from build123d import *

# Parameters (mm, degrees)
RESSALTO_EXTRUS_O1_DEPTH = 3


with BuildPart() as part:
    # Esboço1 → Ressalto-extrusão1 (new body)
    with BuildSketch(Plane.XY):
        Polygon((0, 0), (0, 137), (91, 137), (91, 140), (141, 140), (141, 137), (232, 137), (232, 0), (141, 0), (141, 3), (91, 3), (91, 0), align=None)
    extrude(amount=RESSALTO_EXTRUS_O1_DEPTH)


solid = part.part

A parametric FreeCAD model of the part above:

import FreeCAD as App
import Part
import Sketcher

V = App.Vector


def add_polygon(sketch, points):
    """Adds a closed chain of lines whose ends are joined by coincident constraints."""
    first, n = sketch.GeometryCount, len(points)
    for a, b in zip(points, points[1:] + points[:1]):
        sketch.addGeometry(Part.LineSegment(App.Vector(*a, 0), App.Vector(*b, 0)), False)
    for i in range(n):
        sketch.addConstraint(Sketcher.Constraint("Coincident", first + i, 2, first + (i + 1) % n, 1))

doc = App.newDocument("Part")
params = doc.addObject("Spreadsheet::Sheet", "Params")
for row, (alias, value) in enumerate([
    ("sketch1_width", "91 mm"),
    ("sketch1_width2", "50 mm"),
    ("sketch1_height", "137 mm"),
    ("sketch1_height2", "3 mm"),
    ("pad1_length", "3 mm"),
], start=1):
    params.set(f"A{row}", alias)
    params.set(f"B{row}", "=" + value)
    params.setAlias(f"B{row}", alias)

body = doc.addObject("PartDesign::Body", "Body")

# Sketch on XY plane
sketch1 = body.newObject("Sketcher::SketchObject", "Sketch")
sketch1.AttachmentSupport = (doc.getObject("XY_Plane"), [""])
sketch1.MapMode = "FlatFace"
add_polygon(sketch1, [(0, 137), (0, 0), (91, 0), (91, 3), (141, 3), (141, 0), (232, 0), (232, 137), (141, 137), (141, 140), (91, 140), (91, 137)])  # lines 0-11
sketch1.addConstraint(Sketcher.Constraint("Vertical", 0))
sketch1.addConstraint(Sketcher.Constraint("Horizontal", 1))
sketch1.addConstraint(Sketcher.Constraint("Vertical", 2))
sketch1.addConstraint(Sketcher.Constraint("Horizontal", 3))
sketch1.addConstraint(Sketcher.Constraint("Vertical", 4))
sketch1.addConstraint(Sketcher.Constraint("Horizontal", 5))
sketch1.addConstraint(Sketcher.Constraint("Vertical", 6))
sketch1.addConstraint(Sketcher.Constraint("Horizontal", 7))
sketch1.addConstraint(Sketcher.Constraint("Vertical", 8))
sketch1.addConstraint(Sketcher.Constraint("Horizontal", 9))
sketch1.addConstraint(Sketcher.Constraint("Vertical", 10))
sketch1.addConstraint(Sketcher.Constraint("Horizontal", 11))
sketch1.addConstraint(Sketcher.Constraint("Coincident", 0, 2, -1, 1))
sketch1.addConstraint(Sketcher.Constraint("PointOnObject", 4, 2, -1))
sketch1.addConstraint(Sketcher.Constraint("Horizontal", 7, 2, 10, 2))
sketch1.addConstraint(Sketcher.Constraint("Vertical", 4, 2, 7, 2))
sketch1.addConstraint(Sketcher.Constraint("Vertical", 2, 2, 9, 2))
sketch1.addConstraint(Sketcher.Constraint("Equal", 1, 5))
sketch1.addConstraint(Sketcher.Constraint("Equal", 4, 8))
sketch1.addConstraint(Sketcher.Constraint("DistanceX", 1, 1, 1, 2, 91.0))
sketch1.addConstraint(Sketcher.Constraint("DistanceX", 3, 1, 3, 2, 50.0))
sketch1.addConstraint(Sketcher.Constraint("DistanceY", 0, 2, 0, 1, 137.0))
sketch1.addConstraint(Sketcher.Constraint("DistanceY", 2, 1, 2, 2, 3.0))
sketch1.setExpression("Constraints[31]", "Params.sketch1_width")
sketch1.setExpression("Constraints[32]", "Params.sketch1_width2")
sketch1.setExpression("Constraints[33]", "Params.sketch1_height")
sketch1.setExpression("Constraints[34]", "Params.sketch1_height2")
pad1 = body.newObject("PartDesign::Pad", "Pad")
pad1.Profile = sketch1
pad1.setExpression("Length", "Params.pad1_length")

doc.recompute()
